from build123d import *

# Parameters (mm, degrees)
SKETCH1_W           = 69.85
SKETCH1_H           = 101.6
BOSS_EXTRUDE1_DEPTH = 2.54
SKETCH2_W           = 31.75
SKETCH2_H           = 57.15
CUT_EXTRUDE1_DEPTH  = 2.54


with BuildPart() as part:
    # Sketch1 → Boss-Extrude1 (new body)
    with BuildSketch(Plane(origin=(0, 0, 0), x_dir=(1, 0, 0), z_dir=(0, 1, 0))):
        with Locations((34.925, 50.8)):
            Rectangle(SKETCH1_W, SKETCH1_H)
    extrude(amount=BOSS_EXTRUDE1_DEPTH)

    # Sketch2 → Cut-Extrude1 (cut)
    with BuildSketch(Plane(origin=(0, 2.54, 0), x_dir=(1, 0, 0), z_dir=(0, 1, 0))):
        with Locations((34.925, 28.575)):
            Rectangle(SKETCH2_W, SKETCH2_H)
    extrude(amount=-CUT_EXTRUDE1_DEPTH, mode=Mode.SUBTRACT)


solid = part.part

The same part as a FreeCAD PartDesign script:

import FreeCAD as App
import Part
import Sketcher

V = App.Vector
Q = App.Units.Quantity


def add_polygon(sketch, points):
    """Adds a closed chain of lines whose ends are joined by coincident constraints."""
    first, n = sketch.GeometryCount, len(points)
    for a, b in zip(points, points[1:] + points[:1]):
        sketch.addGeometry(Part.LineSegment(App.Vector(*a, 0), App.Vector(*b, 0)), False)
    for i in range(n):
        sketch.addConstraint(Sketcher.Constraint("Coincident", first + i, 2, first + (i + 1) % n, 1))

doc = App.newDocument("Part")
body = doc.addObject("PartDesign::Body", "Body")

# Sketch on XZ plane
sketch1 = body.newObject("Sketcher::SketchObject", "Sketch")
sketch1.AttachmentSupport = (doc.getObject("XZ_Plane"), [""])
sketch1.MapMode = "FlatFace"
add_polygon(sketch1, [(0, -101.6), (0, 0), (69.85, 0), (69.85, -101.6)])  # lines 0-3
sketch1.addConstraint([
    Sketcher.Constraint("Vertical", 0),
    Sketcher.Constraint("Horizontal", 1),
    Sketcher.Constraint("Vertical", 2),
    Sketcher.Constraint("Horizontal", 3),
    Sketcher.Constraint("Coincident", 0, 2, -1, 1),
    Sketcher.Constraint("DistanceY", 0, 1, 0, 2, Q("4 in")),
    Sketcher.Constraint("DistanceX", 1, 1, 1, 2, Q("2.75 in")),
])
pad1 = body.newObject("PartDesign::Pad", "Pad")
pad1.Profile = sketch1
pad1.Length = Q("0.1 in")
pad1.Reversed = True

# Sketch on XZ plane
sketch2 = body.newObject("Sketcher::SketchObject", "Sketch001")
sketch2.AttachmentSupport = (doc.getObject("XZ_Plane"), [""])
sketch2.MapMode = "FlatFace"
sketch2.AttachmentOffset = App.Placement(V(0, 0, -0.1 * 25.4), App.Rotation())
add_polygon(sketch2, [(19.05, -57.15), (19.05, 0), (50.8, 0), (50.8, -57.15)])  # lines 0-3
sketch2.addConstraint([
    Sketcher.Constraint("Vertical", 0),
    Sketcher.Constraint("Horizontal", 1),
    Sketcher.Constraint("Vertical", 2),
    Sketcher.Constraint("Horizontal", 3),
    Sketcher.Constraint("PointOnObject", 0, 2, -1),
    Sketcher.Constraint("DistanceX", -1, 1, 1, 2, Q("2 in")),
    Sketcher.Constraint("DistanceX", 1, 1, 1, 2, Q("1.25 in")),
    Sketcher.Constraint("DistanceY", 0, 1, 0, 2, Q("2.25 in")),
])
pocket1 = body.newObject("PartDesign::Pocket", "Pocket")
pocket1.Profile = sketch2
pocket1.Length = Q("0.1 in")
pocket1.Reversed = True

doc.recompute()
